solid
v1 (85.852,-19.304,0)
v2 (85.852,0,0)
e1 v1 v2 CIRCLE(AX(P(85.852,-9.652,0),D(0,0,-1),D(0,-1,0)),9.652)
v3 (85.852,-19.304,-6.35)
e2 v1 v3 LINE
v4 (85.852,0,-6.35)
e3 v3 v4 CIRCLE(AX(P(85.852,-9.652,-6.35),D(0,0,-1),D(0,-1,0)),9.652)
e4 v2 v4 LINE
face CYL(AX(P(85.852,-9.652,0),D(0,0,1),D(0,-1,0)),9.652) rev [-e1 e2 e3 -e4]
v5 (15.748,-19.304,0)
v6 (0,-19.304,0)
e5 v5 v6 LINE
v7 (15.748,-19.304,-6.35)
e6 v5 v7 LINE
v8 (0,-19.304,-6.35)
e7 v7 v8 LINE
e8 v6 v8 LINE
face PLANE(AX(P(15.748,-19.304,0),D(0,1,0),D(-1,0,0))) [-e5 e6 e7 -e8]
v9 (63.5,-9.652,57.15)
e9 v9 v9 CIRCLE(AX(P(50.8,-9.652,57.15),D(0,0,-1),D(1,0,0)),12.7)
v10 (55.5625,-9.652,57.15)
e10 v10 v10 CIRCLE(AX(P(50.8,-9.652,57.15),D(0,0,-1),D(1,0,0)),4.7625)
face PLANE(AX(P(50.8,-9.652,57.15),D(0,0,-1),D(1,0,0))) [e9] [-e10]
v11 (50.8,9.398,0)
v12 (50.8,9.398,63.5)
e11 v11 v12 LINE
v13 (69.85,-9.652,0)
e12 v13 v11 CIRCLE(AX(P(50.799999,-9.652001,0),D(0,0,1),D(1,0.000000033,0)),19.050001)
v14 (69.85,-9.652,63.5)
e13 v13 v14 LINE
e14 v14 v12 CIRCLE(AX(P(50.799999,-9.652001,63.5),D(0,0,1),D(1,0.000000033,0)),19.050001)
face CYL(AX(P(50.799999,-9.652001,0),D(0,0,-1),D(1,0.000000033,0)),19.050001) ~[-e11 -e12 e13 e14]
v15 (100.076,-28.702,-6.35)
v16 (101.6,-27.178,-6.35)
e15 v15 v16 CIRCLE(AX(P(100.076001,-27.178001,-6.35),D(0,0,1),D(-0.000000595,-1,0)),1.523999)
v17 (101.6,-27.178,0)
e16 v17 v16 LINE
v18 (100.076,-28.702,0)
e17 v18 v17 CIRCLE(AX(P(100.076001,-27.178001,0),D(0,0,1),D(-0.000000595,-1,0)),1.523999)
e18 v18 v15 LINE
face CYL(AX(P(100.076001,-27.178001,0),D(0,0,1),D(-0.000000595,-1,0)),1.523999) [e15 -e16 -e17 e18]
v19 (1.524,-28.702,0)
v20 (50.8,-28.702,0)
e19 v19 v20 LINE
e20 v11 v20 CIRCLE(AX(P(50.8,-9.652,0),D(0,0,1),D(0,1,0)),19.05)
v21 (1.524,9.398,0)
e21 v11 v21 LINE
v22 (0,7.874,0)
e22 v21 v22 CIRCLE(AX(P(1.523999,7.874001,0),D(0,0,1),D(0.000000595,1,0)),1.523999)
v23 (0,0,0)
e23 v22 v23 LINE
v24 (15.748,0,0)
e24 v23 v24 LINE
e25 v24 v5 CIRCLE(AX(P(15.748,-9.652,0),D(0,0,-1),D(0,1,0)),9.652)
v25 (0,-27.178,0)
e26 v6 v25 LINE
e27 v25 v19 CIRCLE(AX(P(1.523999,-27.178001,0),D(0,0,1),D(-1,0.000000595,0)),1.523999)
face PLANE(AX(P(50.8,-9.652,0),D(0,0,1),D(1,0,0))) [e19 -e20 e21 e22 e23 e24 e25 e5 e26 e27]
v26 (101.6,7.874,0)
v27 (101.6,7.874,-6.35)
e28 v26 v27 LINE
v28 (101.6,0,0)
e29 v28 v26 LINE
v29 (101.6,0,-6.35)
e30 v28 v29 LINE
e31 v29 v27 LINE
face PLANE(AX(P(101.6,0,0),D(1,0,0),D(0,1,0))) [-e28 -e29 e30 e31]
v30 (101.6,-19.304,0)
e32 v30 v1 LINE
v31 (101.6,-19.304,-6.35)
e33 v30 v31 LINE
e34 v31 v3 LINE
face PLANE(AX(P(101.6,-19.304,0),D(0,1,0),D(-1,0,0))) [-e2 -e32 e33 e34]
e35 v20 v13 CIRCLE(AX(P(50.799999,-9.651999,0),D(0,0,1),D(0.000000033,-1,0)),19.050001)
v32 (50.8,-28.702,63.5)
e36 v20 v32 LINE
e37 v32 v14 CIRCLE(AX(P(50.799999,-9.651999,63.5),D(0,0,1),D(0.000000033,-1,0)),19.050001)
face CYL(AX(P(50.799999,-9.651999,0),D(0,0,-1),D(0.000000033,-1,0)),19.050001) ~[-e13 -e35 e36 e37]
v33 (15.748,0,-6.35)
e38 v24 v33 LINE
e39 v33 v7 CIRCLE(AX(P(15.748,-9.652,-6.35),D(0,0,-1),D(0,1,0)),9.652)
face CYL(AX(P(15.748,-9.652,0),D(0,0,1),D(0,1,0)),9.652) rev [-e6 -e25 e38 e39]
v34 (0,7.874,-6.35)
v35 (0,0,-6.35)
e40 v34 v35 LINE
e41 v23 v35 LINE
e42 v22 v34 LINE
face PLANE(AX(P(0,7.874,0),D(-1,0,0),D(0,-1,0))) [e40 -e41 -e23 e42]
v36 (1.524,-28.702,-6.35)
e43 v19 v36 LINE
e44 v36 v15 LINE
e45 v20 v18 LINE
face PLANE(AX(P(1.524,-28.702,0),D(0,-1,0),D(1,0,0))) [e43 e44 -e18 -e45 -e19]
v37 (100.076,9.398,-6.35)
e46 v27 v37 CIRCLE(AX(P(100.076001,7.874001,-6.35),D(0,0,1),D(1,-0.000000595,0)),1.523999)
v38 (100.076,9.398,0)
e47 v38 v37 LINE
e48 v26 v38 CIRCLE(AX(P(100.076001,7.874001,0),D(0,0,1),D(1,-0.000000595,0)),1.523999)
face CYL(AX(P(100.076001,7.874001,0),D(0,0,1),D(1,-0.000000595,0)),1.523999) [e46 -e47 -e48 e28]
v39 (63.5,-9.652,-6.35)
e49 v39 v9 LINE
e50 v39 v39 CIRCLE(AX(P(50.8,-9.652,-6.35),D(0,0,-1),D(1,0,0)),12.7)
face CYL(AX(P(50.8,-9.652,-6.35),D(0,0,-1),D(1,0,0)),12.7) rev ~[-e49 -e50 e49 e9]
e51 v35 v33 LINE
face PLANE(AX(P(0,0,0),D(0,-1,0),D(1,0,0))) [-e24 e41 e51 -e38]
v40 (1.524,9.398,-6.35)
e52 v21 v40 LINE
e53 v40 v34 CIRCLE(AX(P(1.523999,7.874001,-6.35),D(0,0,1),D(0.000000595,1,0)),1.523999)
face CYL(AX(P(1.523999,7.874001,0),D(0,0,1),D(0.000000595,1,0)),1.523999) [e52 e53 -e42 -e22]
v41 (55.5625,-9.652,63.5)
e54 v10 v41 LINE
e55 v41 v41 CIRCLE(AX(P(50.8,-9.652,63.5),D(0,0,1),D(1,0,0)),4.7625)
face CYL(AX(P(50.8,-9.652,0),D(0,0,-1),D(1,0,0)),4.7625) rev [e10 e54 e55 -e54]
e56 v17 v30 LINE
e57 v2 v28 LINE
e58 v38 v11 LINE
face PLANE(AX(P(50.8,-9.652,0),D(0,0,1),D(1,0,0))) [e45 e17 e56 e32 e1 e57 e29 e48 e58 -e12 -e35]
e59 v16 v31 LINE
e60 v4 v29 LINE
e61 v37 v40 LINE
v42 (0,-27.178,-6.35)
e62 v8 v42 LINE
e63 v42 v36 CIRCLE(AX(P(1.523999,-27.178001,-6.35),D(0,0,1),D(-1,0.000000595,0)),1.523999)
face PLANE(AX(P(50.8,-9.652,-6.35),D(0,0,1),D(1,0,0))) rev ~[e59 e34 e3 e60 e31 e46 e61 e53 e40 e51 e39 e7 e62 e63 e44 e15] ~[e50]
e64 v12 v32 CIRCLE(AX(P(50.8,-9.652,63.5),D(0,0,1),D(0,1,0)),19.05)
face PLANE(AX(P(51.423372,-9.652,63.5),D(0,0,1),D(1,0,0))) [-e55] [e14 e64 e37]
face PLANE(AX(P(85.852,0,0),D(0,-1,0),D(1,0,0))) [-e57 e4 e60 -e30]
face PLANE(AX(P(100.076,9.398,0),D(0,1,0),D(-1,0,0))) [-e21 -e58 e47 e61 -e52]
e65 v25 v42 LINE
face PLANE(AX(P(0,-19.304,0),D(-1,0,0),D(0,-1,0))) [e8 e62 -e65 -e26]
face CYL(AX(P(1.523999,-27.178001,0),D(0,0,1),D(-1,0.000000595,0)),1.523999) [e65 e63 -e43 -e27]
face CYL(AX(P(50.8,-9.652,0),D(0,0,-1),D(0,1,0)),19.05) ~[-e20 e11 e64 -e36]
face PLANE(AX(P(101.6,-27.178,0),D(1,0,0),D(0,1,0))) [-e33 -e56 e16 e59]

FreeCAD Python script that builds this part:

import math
import FreeCAD as App
import Part
import Sketcher
from FreeCAD import Vector
Q = App.Units.Quantity

doc = App.newDocument("Part")
params = doc.addObject("Spreadsheet::Sheet", "Params")
for row, (alias, value) in enumerate([
    ("sketch1_radius", "0.38 in"),
    ("sketch1_radius2", "0.06 in"),
    ("sketch1_width", "0.62 in"),
    ("sketch1_height", "0.31 in"),
    ("pad1_length", "0.25 in"),
    ("sketch2_radius", "0.75 in"),
    ("sketch2_diameter", "0.375 in"),
    ("pad2_length", "2.5 in"),
    ("sketch3_diameter", "1 in"),
    ("pocket1_length", "2.5 in"),
], start=1):
    params.set(f"A{row}", alias)
    params.set(f"B{row}", "=" + value)
    params.setAlias(f"B{row}", alias)

body = doc.addObject("PartDesign::Body", "Body")

# Sketch on XY plane
sketch1 = body.newObject("Sketcher::SketchObject", "Sketch")
sketch1.AttachmentSupport = (doc.getObject("XY_Plane"), [""])
sketch1.MapMode = "FlatFace"
sketch1.addGeometry(Part.LineSegment(Vector(0, 7.9, 0), Vector(0, 0, 0)), False)
sketch1.addGeometry(Part.LineSegment(Vector(0, 0, 0), Vector(15.7, 0, 0)), False)
sketch1.addGeometry(Part.ArcOfCircle(Part.Circle(Vector(15.7, -9.7, 0), Vector(0, 0, 1), 9.7), math.radians(-90), math.radians(90)), False)
sketch1.addGeometry(Part.LineSegment(Vector(15.7, -19.3, 0), Vector(0, -19.3, 0)), False)
sketch1.addGeometry(Part.LineSegment(Vector(0, -19.3, 0), Vector(0, -27.2, 0)), False)
sketch1.addGeometry(Part.ArcOfCircle(Part.Circle(Vector(1.5, -27.2, 0), Vector(0, 0, 1), 1.5), math.radians(180), math.radians(270)), False)
sketch1.addGeometry(Part.LineSegment(Vector(1.5, -28.7, 0), Vector(100.1, -28.7, 0)), False)
sketch1.addGeometry(Part.ArcOfCircle(Part.Circle(Vector(100.1, -27.2, 0), Vector(0, 0, 1), 1.5), math.radians(-90), math.radians(0)), False)
sketch1.addGeometry(Part.LineSegment(Vector(101.6, -27.2, 0), Vector(101.6, -19.3, 0)), False)
sketch1.addGeometry(Part.LineSegment(Vector(101.6, -19.3, 0), Vector(85.9, -19.3, 0)), False)
sketch1.addGeometry(Part.ArcOfCircle(Part.Circle(Vector(85.9, -9.7, 0), Vector(0, 0, 1), 9.7), math.radians(90), math.radians(270)), False)
sketch1.addGeometry(Part.LineSegment(Vector(85.9, 0, 0), Vector(101.6, 0, 0)), False)
sketch1.addGeometry(Part.LineSegment(Vector(101.6, 0, 0), Vector(101.6, 7.9, 0)), False)
sketch1.addGeometry(Part.ArcOfCircle(Part.Circle(Vector(100.1, 7.9, 0), Vector(0, 0, 1), 1.5), math.radians(0), math.radians(90)), False)
sketch1.addGeometry(Part.LineSegment(Vector(100.1, 9.4, 0), Vector(1.5, 9.4, 0)), False)
sketch1.addGeometry(Part.ArcOfCircle(Part.Circle(Vector(1.5, 7.9, 0), Vector(0, 0, 1), 1.5), math.radians(90), math.radians(180)), False)
sketch1.addConstraint(Sketcher.Constraint("Coincident", 0, 2, 1, 1))
sketch1.addConstraint(Sketcher.Constraint("Tangent", 1, 2, 2, 2))
sketch1.addConstraint(Sketcher.Constraint("Tangent", 2, 1, 3, 1))
sketch1.addConstraint(Sketcher.Constraint("Coincident", 3, 2, 4, 1))
sketch1.addConstraint(Sketcher.Constraint("Tangent", 4, 2, 5, 1))
sketch1.addConstraint(Sketcher.Constraint("Tangent", 5, 2, 6, 1))
sketch1.addConstraint(Sketcher.Constraint("Tangent", 6, 2, 7, 1))
sketch1.addConstraint(Sketcher.Constraint("Tangent", 7, 2, 8, 1))
sketch1.addConstraint(Sketcher.Constraint("Coincident", 8, 2, 9, 1))
sketch1.addConstraint(Sketcher.Constraint("Tangent", 9, 2, 10, 2))
sketch1.addConstraint(Sketcher.Constraint("Tangent", 10, 1, 11, 1))
sketch1.addConstraint(Sketcher.Constraint("Coincident", 11, 2, 12, 1))
sketch1.addConstraint(Sketcher.Constraint("Tangent", 12, 2, 13, 1))
sketch1.addConstraint(Sketcher.Constraint("Tangent", 13, 2, 14, 1))
sketch1.addConstraint(Sketcher.Constraint("Tangent", 14, 2, 15, 1))
sketch1.addConstraint(Sketcher.Constraint("Tangent", 15, 2, 0, 1))
sketch1.addConstraint(Sketcher.Constraint("Vertical", 0))
sketch1.addConstraint(Sketcher.Constraint("Horizontal", 1))
sketch1.addConstraint(Sketcher.Constraint("Horizontal", 3))
sketch1.addConstraint(Sketcher.Constraint("Vertical", 4))
sketch1.addConstraint(Sketcher.Constraint("Horizontal", 6))
sketch1.addConstraint(Sketcher.Constraint("Vertical", 8))
sketch1.addConstraint(Sketcher.Constraint("Horizontal", 9))
sketch1.addConstraint(Sketcher.Constraint("Horizontal", 11))
sketch1.addConstraint(Sketcher.Constraint("Vertical", 12))
sketch1.addConstraint(Sketcher.Constraint("Horizontal", 14))
sketch1.addConstraint(Sketcher.Constraint("Coincident", 0, 2, -1, 1))
sketch1.addConstraint(Sketcher.Constraint("Equal", 5, 7))
sketch1.addConstraint(Sketcher.Constraint("Equal", 2, 10))
sketch1.addConstraint(Sketcher.Constraint("Equal", 7, 13))
sketch1.addConstraint(Sketcher.Constraint("Equal", 13, 15))
sketch1.addConstraint(Sketcher.Constraint("PointOnObject", 3, 2, -2))
sketch1.addConstraint(Sketcher.Constraint("PointOnObject", 10, 1, -1))
sketch1.addConstraint(Sketcher.Constraint("Vertical", 7, 3, 13, 3))
sketch1.addConstraint(Sketcher.Constraint("Equal", 3, 9))
sketch1.addConstraint(Sketcher.Constraint("Equal", 0, 4))
sketch1.addConstraint(Sketcher.Constraint("Radius", 2, Q("0.38 in")))
sketch1.addConstraint(Sketcher.Constraint("Radius", 5, Q("0.06 in")))
sketch1.addConstraint(Sketcher.Constraint("DistanceX", -1, 1, 7, 2, Q("4 in")))
sketch1.addConstraint(Sketcher.Constraint("DistanceX", 1, 1, 1, 2, Q("0.62 in")))
sketch1.addConstraint(Sketcher.Constraint("DistanceY", 0, 2, 0, 1, Q("0.31 in")))
sketch1.setExpression("Constraints[36]", "Params.sketch1_radius")
sketch1.setExpression("Constraints[37]", "Params.sketch1_radius2")
sketch1.setExpression("Constraints[39]", "Params.sketch1_width")
sketch1.setExpression("Constraints[40]", "Params.sketch1_height")
pad1 = body.newObject("PartDesign::Pad", "Pad")
pad1.Profile = sketch1
pad1.setExpression("Length", "Params.pad1_length")
pad1.Reversed = True

# Sketch on XY plane
sketch2 = body.newObject("Sketcher::SketchObject", "Sketch001")
sketch2.AttachmentSupport = (doc.getObject("XY_Plane"), [""])
sketch2.MapMode = "FlatFace"
sketch2.addGeometry(Part.ArcOfCircle(Part.Circle(Vector(50.8, -9.7, 0), Vector(0, 0, 1), 19.1), math.radians(-90), math.radians(0)), False)
sketch2.addGeometry(Part.ArcOfCircle(Part.Circle(Vector(50.8, -9.7, 0), Vector(0, 0, 1), 19.1), math.radians(0), math.radians(90)), False)
sketch2.addGeometry(Part.ArcOfCircle(Part.Circle(Vector(50.8, -9.7, 0), Vector(0, 0, 1), 19.1), math.radians(90), math.radians(270)), False)
sketch2.addGeometry(Part.Circle(Vector(50.8, -9.7, 0), Vector(0, 0, 1), 4.8), False)
sketch2.addConstraint(Sketcher.Constraint("Tangent", 0, 2, 1, 1))
sketch2.addConstraint(Sketcher.Constraint("Tangent", 1, 2, 2, 1))
sketch2.addConstraint(Sketcher.Constraint("Tangent", 2, 2, 0, 1))
sketch2.addConstraint(Sketcher.Constraint("Coincident", 3, 3, 0, 3))
sketch2.addConstraint(Sketcher.Constraint("Horizontal", 3, 3, 0, 2))
sketch2.addConstraint(Sketcher.Constraint("Vertical", 3, 3, 1, 2))
sketch2.addConstraint(Sketcher.Constraint("Vertical", 1, 2, 2, 2))
sketch2.addConstraint(Sketcher.Constraint("Radius", 0, Q("0.75 in")))
sketch2.addConstraint(Sketcher.Constraint("Diameter", 3, Q("0.375 in")))
sketch2.addConstraint(Sketcher.Constraint("DistanceX", -1, 1, 0, 3, Q("2 in")))
sketch2.addConstraint(Sketcher.Constraint("DistanceY", 0, 3, -1, 1, Q("0.38 in")))
sketch2.setExpression("Constraints[7]", "Params.sketch2_radius")
sketch2.setExpression("Constraints[8]", "Params.sketch2_diameter")
pad2 = body.newObject("PartDesign::Pad", "Pad001")
pad2.Profile = sketch2
pad2.setExpression("Length", "Params.pad2_length")

# Sketch on XY plane
sketch3 = body.newObject("Sketcher::SketchObject", "Sketch002")
sketch3.AttachmentSupport = (doc.getObject("XY_Plane"), [""])
sketch3.MapMode = "FlatFace"
sketch3.AttachmentOffset = App.Placement(Vector(0, 0, -0.25 * 25.4), App.Rotation())
sketch3.addGeometry(Part.Circle(Vector(51, -10, 0), Vector(0, 0, 1), 13), False)
sketch3.addConstraint(Sketcher.Constraint("Diameter", 0, Q("1 in")))
sketch3.addConstraint(Sketcher.Constraint("DistanceX", -1, 1, 0, 3, Q("2 in")))
sketch3.addConstraint(Sketcher.Constraint("DistanceY", 0, 3, -1, 1, Q("0.38 in")))
sketch3.setExpression("Constraints[0]", "Params.sketch3_diameter")
pocket1 = body.newObject("PartDesign::Pocket", "Pocket")
pocket1.Profile = sketch3
pocket1.setExpression("Length", "Params.pocket1_length")
pocket1.Reversed = True

doc.recompute()
